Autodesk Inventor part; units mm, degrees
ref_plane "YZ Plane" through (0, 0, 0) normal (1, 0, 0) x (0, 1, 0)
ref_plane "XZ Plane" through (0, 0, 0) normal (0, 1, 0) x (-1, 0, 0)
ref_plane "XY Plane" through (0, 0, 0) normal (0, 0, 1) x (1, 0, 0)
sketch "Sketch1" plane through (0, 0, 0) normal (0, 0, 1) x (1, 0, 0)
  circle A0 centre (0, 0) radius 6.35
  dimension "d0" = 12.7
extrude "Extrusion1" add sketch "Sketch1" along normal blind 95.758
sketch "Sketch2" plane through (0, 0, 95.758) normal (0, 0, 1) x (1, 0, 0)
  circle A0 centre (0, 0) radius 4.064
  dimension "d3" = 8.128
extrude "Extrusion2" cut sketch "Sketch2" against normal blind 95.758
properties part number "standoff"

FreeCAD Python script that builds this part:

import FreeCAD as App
import Part
import Sketcher

V = App.Vector
Q = App.Units.Quantity

doc = App.newDocument("Part")
params = doc.addObject("Spreadsheet::Sheet", "Params")
for row, (alias, value) in enumerate([
    ("sketch1_diameter", "0.5 in"),
    ("pad1_length", "3.77 in"),
    ("sketch2_diameter", "0.32 in"),
    ("pocket1_length", "3.77 in"),
], start=1):
    params.set(f"A{row}", alias)
    params.set(f"B{row}", "=" + value)
    params.setAlias(f"B{row}", alias)

body = doc.addObject("PartDesign::Body", "Body")

# Sketch on XY plane
sketch1 = doc.addObject("Sketcher::SketchObject", "Sketch")
body.addObject(sketch1)
sketch1.AttachmentSupport = (doc.XY_Plane, [""])
sketch1.MapMode = "FlatFace"
sketch1.addGeometry(Part.Circle(V(0, 0, 0), V(0, 0, 1), 6.35), False)
sketch1.addConstraint([
    Sketcher.Constraint("Coincident", 0, 3, -1, 1),
    Sketcher.Constraint("Diameter", 0, Q("0.5 in")),
])
sketch1.setExpression("Constraints[1]", "Params.sketch1_diameter")
pad1 = doc.addObject("PartDesign::Pad", "Pad")
body.addObject(pad1)
pad1.Profile = sketch1
pad1.setExpression("Length", "Params.pad1_length")

# Sketch on XY plane
sketch2 = doc.addObject("Sketcher::SketchObject", "Sketch001")
body.addObject(sketch2)
sketch2.AttachmentSupport = (doc.XY_Plane, [""])
sketch2.MapMode = "FlatFace"
sketch2.AttachmentOffset = App.Placement(V(0, 0, 3.77 * 25.4), App.Rotation())
sketch2.addGeometry(Part.Circle(V(0, 0, 0), V(0, 0, 1), 4.064), False)
sketch2.addConstraint([
    Sketcher.Constraint("Coincident", 0, 3, -1, 1),
    Sketcher.Constraint("Diameter", 0, Q("0.32 in")),
])
sketch2.setExpression("Constraints[1]", "Params.sketch2_diameter")
pocket1 = doc.addObject("PartDesign::Pocket", "Pocket")
body.addObject(pocket1)
pocket1.Profile = sketch2
pocket1.setExpression("Length", "Params.pocket1_length")

doc.recompute()
